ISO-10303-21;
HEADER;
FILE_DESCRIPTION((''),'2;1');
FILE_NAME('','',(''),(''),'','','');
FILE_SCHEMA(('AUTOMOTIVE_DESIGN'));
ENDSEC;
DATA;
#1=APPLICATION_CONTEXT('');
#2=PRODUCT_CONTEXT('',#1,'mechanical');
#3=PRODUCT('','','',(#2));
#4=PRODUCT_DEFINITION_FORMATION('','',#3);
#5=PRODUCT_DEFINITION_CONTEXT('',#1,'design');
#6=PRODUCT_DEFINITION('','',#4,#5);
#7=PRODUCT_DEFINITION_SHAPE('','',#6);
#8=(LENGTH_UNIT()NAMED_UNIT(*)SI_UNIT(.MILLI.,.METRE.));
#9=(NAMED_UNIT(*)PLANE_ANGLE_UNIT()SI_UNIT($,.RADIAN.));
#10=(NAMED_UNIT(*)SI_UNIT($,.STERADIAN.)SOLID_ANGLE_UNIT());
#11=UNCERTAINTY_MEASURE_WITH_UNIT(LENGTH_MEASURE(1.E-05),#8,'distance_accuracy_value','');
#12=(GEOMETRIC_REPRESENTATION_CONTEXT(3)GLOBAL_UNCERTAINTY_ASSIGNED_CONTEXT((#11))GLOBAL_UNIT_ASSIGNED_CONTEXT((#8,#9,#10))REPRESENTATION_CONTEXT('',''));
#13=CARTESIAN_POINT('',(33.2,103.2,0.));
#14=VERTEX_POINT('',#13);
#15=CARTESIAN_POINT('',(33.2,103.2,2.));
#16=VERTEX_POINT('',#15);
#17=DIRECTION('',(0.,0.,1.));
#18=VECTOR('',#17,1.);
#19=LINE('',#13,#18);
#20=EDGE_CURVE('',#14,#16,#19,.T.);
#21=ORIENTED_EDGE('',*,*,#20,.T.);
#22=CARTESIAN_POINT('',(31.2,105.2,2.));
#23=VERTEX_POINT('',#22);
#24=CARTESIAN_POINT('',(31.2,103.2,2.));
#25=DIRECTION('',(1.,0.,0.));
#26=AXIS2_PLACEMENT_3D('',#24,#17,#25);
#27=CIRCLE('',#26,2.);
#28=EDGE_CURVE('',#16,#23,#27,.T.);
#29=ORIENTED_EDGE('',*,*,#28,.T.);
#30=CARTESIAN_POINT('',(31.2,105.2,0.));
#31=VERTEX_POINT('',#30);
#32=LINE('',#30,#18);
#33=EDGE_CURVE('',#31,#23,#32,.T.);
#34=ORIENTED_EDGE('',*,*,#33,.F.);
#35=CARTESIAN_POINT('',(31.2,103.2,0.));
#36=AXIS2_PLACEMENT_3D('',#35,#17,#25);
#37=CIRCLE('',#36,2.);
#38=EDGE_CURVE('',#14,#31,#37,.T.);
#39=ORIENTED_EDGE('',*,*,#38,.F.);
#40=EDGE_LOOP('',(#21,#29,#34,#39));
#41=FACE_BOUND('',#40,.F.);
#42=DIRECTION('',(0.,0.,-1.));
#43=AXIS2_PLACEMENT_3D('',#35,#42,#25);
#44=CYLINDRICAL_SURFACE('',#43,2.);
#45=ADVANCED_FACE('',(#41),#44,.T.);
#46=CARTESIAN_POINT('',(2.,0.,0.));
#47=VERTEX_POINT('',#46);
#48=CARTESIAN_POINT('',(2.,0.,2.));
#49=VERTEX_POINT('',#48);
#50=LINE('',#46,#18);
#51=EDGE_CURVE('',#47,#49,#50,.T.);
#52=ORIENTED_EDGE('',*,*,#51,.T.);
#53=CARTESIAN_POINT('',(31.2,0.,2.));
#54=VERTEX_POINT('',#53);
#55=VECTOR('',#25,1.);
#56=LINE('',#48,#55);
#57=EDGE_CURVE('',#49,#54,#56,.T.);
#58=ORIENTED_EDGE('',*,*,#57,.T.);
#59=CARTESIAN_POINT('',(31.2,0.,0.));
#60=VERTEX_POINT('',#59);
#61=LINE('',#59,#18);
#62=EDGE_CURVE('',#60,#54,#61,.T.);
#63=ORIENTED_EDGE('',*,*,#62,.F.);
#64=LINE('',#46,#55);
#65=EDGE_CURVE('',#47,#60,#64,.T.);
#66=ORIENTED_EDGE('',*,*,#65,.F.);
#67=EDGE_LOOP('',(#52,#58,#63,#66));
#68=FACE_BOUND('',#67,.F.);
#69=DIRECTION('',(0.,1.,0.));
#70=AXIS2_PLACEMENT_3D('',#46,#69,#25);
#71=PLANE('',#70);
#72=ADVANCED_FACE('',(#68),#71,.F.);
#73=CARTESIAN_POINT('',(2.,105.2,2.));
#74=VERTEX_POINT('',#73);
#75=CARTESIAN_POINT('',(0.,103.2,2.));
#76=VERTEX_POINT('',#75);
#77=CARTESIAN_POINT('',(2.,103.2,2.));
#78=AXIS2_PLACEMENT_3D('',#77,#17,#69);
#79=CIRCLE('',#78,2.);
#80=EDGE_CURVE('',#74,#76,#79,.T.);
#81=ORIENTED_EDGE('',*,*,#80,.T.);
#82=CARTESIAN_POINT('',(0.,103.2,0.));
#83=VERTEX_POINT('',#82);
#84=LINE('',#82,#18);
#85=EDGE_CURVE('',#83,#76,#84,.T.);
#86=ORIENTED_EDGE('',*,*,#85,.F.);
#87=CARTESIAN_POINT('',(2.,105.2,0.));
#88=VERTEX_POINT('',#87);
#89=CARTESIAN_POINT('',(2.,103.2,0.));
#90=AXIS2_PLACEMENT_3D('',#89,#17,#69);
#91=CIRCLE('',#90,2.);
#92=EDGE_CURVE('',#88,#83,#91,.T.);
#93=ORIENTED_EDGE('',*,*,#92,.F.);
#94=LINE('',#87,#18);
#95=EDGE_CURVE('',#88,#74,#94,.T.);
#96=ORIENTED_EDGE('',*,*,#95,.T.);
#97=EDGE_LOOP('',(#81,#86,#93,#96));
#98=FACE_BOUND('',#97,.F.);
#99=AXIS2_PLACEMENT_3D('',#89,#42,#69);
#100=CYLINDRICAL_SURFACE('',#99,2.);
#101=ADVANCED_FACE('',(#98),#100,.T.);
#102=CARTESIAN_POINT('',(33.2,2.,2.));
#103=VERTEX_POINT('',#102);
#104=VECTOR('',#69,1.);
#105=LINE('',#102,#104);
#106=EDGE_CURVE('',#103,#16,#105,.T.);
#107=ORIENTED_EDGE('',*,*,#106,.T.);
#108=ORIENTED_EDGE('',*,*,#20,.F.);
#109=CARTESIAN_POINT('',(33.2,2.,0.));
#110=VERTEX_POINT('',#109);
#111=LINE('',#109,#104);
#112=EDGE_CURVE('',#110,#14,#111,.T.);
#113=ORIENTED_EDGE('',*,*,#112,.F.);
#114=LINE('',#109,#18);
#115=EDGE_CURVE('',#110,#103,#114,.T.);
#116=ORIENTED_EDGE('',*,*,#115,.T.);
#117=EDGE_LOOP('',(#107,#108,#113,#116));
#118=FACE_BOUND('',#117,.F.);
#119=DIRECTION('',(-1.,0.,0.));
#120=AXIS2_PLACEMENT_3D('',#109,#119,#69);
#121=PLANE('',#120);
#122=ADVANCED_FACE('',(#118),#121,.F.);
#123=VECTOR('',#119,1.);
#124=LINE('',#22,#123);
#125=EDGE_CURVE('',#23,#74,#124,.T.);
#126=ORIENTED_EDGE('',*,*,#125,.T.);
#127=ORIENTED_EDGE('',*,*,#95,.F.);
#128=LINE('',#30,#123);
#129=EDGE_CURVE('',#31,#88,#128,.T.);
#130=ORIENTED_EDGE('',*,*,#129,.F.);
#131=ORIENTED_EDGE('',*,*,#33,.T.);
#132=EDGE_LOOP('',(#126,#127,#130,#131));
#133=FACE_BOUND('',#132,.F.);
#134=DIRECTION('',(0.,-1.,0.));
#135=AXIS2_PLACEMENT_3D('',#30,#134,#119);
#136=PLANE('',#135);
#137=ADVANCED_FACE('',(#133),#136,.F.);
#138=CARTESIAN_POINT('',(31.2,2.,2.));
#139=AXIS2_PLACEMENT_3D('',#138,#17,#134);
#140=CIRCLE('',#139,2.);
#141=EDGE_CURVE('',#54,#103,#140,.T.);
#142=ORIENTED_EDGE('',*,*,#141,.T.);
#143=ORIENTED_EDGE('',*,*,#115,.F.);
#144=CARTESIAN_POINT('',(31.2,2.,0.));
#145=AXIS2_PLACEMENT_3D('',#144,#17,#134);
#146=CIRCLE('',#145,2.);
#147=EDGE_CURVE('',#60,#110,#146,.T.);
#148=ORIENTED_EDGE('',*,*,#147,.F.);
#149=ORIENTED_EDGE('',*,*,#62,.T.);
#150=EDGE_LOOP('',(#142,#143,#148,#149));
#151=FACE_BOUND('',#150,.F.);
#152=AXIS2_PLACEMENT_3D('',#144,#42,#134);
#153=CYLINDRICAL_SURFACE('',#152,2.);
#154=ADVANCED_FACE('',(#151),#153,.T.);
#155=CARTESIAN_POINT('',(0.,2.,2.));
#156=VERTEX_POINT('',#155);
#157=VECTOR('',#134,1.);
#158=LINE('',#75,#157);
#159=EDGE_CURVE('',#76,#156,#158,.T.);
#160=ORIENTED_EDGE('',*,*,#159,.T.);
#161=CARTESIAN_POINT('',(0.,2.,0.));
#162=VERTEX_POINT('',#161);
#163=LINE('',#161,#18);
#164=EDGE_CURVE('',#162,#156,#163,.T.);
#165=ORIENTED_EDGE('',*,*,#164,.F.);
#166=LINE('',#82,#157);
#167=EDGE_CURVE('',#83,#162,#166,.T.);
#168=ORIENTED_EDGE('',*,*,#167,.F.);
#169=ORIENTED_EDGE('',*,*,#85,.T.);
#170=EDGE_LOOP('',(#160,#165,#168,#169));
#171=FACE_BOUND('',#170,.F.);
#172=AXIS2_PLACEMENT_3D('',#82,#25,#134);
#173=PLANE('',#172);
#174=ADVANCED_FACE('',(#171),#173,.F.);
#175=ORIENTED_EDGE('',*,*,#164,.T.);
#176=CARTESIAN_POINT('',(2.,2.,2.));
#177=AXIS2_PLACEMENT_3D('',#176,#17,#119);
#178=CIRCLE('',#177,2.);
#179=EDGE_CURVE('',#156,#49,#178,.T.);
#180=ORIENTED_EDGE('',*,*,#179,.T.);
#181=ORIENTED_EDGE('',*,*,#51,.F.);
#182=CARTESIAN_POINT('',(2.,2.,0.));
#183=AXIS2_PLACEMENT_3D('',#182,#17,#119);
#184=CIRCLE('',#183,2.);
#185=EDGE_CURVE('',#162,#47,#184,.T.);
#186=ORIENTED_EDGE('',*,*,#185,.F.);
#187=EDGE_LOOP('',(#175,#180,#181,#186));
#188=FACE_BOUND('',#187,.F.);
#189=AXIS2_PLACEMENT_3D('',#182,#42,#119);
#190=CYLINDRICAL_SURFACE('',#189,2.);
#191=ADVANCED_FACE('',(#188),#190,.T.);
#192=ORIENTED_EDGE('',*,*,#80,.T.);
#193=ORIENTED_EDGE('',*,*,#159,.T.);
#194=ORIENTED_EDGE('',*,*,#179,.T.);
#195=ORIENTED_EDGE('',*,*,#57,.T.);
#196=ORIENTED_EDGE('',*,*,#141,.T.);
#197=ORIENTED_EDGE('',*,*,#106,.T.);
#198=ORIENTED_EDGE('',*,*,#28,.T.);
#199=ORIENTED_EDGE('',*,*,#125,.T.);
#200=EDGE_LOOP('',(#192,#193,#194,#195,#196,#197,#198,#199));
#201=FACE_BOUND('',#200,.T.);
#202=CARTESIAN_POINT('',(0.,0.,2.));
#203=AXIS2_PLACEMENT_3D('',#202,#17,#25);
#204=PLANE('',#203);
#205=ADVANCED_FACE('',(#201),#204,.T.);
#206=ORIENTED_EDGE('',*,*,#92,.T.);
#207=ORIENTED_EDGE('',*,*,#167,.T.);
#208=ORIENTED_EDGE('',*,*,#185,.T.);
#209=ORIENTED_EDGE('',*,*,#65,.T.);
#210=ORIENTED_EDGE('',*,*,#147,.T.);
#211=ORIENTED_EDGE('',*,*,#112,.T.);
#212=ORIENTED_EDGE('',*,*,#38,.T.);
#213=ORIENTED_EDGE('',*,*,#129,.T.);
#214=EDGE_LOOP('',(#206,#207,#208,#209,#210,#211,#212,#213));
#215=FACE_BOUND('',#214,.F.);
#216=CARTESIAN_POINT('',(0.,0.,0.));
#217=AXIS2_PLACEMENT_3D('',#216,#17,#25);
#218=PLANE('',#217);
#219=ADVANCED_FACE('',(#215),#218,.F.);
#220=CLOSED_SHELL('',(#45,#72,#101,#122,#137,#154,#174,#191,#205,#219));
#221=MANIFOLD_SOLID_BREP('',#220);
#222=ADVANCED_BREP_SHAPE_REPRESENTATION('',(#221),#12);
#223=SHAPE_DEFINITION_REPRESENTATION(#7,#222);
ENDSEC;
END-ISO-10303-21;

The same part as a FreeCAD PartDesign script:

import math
import FreeCAD as App
import Part
import Sketcher

V = App.Vector

doc = App.newDocument("Part")
body = doc.addObject("PartDesign::Body", "Body")

sketch1 = body.newObject("Sketcher::SketchObject", "Sketch")
sketch1.AttachmentSupport = (doc.getObject("XY_Plane"), [""])
sketch1.MapMode = "FlatFace"
sketch1.addGeometry([
    Part.ArcOfCircle(Part.Circle(V(2, 2, 0), V(0, 0, 1), 2), math.radians(180), math.radians(270)),
    Part.LineSegment(V(2, 0, 0), V(31.2, 0, 0)),
    Part.ArcOfCircle(Part.Circle(V(31.2, 2, 0), V(0, 0, 1), 2), math.radians(-90), math.radians(0)),
    Part.LineSegment(V(33.2, 2, 0), V(33.2, 103.2, 0)),
    Part.ArcOfCircle(Part.Circle(V(31.2, 103.2, 0), V(0, 0, 1), 2), math.radians(0), math.radians(90)),
    Part.LineSegment(V(31.2, 105.2, 0), V(2, 105.2, 0)),
    Part.ArcOfCircle(Part.Circle(V(2, 103.2, 0), V(0, 0, 1), 2), math.radians(90), math.radians(180)),
    Part.LineSegment(V(0, 103.2, 0), V(0, 2, 0)),
], False)
sketch1.addConstraint([
    Sketcher.Constraint("Tangent", 0, 2, 1, 1),
    Sketcher.Constraint("Tangent", 1, 2, 2, 1),
    Sketcher.Constraint("Tangent", 2, 2, 3, 1),
    Sketcher.Constraint("Tangent", 3, 2, 4, 1),
    Sketcher.Constraint("Tangent", 4, 2, 5, 1),
    Sketcher.Constraint("Tangent", 5, 2, 6, 1),
    Sketcher.Constraint("Tangent", 6, 2, 7, 1),
    Sketcher.Constraint("Tangent", 7, 2, 0, 1),
    Sketcher.Constraint("Horizontal", 1),
    Sketcher.Constraint("Vertical", 3),
    Sketcher.Constraint("Horizontal", 5),
    Sketcher.Constraint("Vertical", 7),
    Sketcher.Constraint("Equal", 0, 2),
    Sketcher.Constraint("Equal", 2, 4),
    Sketcher.Constraint("Equal", 4, 6),
    Sketcher.Constraint("PointOnObject", 0, 2, -1),
    Sketcher.Constraint("PointOnObject", 6, 2, -2),
    Sketcher.Constraint("Radius", 0, 2.0),
    Sketcher.Constraint("DistanceX", -1, 1, 2, 2, 33.2),
    Sketcher.Constraint("DistanceY", -1, 1, 4, 2, 105.2),
])
pad1 = body.newObject("PartDesign::Pad", "Pad")
pad1.Profile = sketch1
pad1.Length = 2

doc.recompute()
